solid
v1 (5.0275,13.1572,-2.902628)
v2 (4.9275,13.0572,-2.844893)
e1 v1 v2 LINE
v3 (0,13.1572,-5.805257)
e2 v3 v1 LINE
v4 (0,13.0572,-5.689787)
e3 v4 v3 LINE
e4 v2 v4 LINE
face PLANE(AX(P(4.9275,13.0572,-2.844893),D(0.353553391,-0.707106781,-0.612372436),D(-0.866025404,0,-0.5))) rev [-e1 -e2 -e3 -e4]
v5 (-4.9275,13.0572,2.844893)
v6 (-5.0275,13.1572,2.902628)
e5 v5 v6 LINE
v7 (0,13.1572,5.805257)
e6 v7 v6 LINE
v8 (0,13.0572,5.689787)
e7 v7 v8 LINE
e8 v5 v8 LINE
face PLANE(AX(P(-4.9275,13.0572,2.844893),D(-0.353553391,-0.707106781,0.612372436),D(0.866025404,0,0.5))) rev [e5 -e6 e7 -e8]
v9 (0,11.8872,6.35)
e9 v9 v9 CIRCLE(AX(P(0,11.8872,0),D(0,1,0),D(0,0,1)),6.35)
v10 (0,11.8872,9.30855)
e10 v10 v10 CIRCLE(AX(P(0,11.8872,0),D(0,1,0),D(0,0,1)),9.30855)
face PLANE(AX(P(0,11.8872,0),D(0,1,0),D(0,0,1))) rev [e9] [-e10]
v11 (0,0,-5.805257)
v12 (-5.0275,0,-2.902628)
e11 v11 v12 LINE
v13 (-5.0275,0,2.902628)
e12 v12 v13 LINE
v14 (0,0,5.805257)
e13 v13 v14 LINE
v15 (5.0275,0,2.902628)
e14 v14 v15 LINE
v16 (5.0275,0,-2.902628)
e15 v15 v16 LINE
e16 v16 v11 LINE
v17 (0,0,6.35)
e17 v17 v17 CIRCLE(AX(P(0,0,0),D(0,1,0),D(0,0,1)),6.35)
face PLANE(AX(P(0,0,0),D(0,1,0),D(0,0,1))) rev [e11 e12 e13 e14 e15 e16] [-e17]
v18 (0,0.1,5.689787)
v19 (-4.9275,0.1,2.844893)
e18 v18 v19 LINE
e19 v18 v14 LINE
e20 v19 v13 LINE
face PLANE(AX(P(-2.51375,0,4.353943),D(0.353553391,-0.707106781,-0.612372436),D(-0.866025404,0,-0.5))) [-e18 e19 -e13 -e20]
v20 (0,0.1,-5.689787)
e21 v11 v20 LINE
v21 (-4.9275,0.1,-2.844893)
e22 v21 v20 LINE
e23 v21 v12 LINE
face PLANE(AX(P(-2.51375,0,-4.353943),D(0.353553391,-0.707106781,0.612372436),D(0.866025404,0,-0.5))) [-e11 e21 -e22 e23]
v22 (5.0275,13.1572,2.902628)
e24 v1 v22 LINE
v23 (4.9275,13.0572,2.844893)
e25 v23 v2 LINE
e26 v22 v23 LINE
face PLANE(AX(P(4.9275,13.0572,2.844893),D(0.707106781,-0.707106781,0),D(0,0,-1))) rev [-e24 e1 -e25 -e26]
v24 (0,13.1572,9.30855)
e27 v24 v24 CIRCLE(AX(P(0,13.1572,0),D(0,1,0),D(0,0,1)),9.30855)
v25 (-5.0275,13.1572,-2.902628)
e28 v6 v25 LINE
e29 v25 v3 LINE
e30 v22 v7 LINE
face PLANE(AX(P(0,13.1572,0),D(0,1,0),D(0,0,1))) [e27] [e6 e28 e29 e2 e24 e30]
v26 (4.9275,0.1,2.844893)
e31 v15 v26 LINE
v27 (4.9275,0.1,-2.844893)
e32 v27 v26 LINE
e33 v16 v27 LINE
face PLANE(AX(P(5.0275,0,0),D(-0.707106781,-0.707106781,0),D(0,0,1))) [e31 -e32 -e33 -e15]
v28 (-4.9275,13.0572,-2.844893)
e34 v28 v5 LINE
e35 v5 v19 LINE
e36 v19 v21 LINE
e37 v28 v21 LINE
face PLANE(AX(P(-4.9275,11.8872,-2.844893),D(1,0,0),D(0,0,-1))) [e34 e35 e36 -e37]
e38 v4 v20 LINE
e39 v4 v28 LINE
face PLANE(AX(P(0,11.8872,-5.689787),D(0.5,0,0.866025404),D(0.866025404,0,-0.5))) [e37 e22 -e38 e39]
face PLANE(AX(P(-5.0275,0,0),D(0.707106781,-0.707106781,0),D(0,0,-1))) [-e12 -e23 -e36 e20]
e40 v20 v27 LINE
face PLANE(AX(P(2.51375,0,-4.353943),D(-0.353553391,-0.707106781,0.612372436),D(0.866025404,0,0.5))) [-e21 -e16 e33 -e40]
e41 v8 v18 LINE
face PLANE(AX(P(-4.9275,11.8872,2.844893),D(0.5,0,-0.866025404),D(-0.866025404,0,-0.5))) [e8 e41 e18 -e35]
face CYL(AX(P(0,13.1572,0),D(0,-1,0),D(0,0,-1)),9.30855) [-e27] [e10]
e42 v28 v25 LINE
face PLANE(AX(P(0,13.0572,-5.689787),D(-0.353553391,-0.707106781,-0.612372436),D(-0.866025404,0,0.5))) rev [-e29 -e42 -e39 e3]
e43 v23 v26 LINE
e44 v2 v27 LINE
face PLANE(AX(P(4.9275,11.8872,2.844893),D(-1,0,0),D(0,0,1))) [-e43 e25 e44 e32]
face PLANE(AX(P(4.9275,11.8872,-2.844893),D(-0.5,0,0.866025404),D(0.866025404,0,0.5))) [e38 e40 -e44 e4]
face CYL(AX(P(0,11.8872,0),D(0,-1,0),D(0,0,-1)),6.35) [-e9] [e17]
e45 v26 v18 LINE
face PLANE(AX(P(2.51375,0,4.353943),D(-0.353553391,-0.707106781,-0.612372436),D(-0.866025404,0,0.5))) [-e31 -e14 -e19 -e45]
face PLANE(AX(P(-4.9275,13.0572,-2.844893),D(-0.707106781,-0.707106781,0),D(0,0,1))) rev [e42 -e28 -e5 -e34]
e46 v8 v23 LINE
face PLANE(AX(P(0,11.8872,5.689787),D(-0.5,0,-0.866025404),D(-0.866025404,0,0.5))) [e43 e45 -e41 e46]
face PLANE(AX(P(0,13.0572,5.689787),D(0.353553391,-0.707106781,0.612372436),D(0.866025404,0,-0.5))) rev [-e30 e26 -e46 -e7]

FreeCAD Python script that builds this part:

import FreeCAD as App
import Part
import Sketcher

V = App.Vector
Q = App.Units.Quantity


def edges_at(feature, points):
    """Names of the edges that pass closest to the given points."""
    edges = feature.Shape.Edges
    near = lambda p: min(range(len(edges)), key=lambda i: edges[i].distToShape(Part.Vertex(*p))[0])
    return sorted({f"Edge{near(p) + 1}" for p in points})


def add_polygon(sketch, points):
    """Adds a closed chain of lines whose ends are joined by coincident constraints."""
    first, n = sketch.GeometryCount, len(points)
    for a, b in zip(points, points[1:] + points[:1]):
        sketch.addGeometry(Part.LineSegment(App.Vector(*a, 0), App.Vector(*b, 0)), False)
    for i in range(n):
        sketch.addConstraint(Sketcher.Constraint("Coincident", first + i, 2, first + (i + 1) % n, 1))

doc = App.newDocument("Part")
body = doc.addObject("PartDesign::Body", "Body")

# Sketch on XZ plane
sketch1 = body.newObject("Sketcher::SketchObject", "Sketch")
sketch1.AttachmentSupport = (doc.getObject("XZ_Plane"), [""])
sketch1.MapMode = "FlatFace"
sketch1.addGeometry(Part.Circle(V(0, 0, 0), V(0, 0, 1), 6), False)  # 0
add_polygon(sketch1, [(-5, -3), (0, -6), (5, -3), (5, 3), (0, 6), (-5, 3)])  # lines 1-6
sketch1.addConstraint([
    Sketcher.Constraint("Vertical", 3),
    Sketcher.Constraint("Vertical", 6),
    Sketcher.Constraint("Coincident", 0, 3, -1, 1),
    Sketcher.Constraint("Symmetric", 1, 2, 4, 2, -1, 1),
    Sketcher.Constraint("Symmetric", 2, 2, 5, 2, -1, 1),
    Sketcher.Constraint("PointOnObject", 1, 2, -2),
    Sketcher.Constraint("Parallel", 1, 4),
    Sketcher.Constraint("Horizontal", 3, 2, 5, 2),
    Sketcher.Constraint("Diameter", 0, Q("0.5 in")),
    Sketcher.Constraint("Angle", 1, Q("-30 deg")),
    Sketcher.Constraint("DistanceX", -1, 1, 2, 2, Q("4.9275 mm")),
    Sketcher.Constraint("DistanceY", 3, 1, 3, 2, Q("5.689787 mm")),
])
pad1 = body.newObject("PartDesign::Pad", "Pad")
pad1.Profile = sketch1
pad1.Length = Q("0.468 in")
pad1.Reversed = True

# Sketch on XZ plane
sketch2 = body.newObject("Sketcher::SketchObject", "Sketch001")
sketch2.AttachmentSupport = (doc.getObject("XZ_Plane"), [""])
sketch2.MapMode = "FlatFace"
sketch2.AttachmentOffset = App.Placement(V(0, 0, -0.468 * 25.4), App.Rotation())
sketch2.addGeometry(Part.Circle(V(0, 0, 0), V(0, 0, 1), 9), False)  # 0
add_polygon(sketch2, [(-5, -3), (0, -6), (5, -3), (5, 3), (0, 6), (-5, 3)])  # lines 1-6
sketch2.addConstraint([
    Sketcher.Constraint("Vertical", 3),
    Sketcher.Constraint("Vertical", 6),
    Sketcher.Constraint("Coincident", 0, 3, -1, 1),
    Sketcher.Constraint("Symmetric", 1, 2, 4, 2, -1, 1),
    Sketcher.Constraint("Symmetric", 2, 2, 5, 2, -1, 1),
    Sketcher.Constraint("PointOnObject", 1, 2, -2),
    Sketcher.Constraint("Parallel", 1, 4),
    Sketcher.Constraint("Horizontal", 3, 2, 5, 2),
    Sketcher.Constraint("Angle", 1, Q("-30 deg")),
    Sketcher.Constraint("Diameter", 0, Q("18.617101 mm")),
    Sketcher.Constraint("DistanceX", -1, 1, 2, 2, Q("4.9275 mm")),
    Sketcher.Constraint("DistanceY", 3, 1, 3, 2, Q("5.689787 mm")),
])
pad2 = body.newObject("PartDesign::Pad", "Pad001")
pad2.Profile = sketch2
pad2.Length = Q("0.05 in")
pad2.Reversed = True
doc.recompute()

chamfer = body.newObject("PartDesign::Chamfer", "Chamfer")
chamfer.Base = (pad2, edges_at(pad2, [
    (-4.927, 0, 0),
    (-2.464, 0, 4.267),
    (2.464, 0, 4.267),
    (4.927, 0, 0),
    (2.464, 0, -4.267),
    (-2.464, 0, -4.267),
]))
chamfer.Size = 0.1
doc.recompute()

chamfer2 = body.newObject("PartDesign::Chamfer", "Chamfer001")
chamfer2.Base = (chamfer, edges_at(chamfer, [
    (2.464, 13.157, -4.267),
    (-2.464, 13.157, -4.267),
    (-4.927, 13.157, 0),
    (-2.464, 13.157, 4.267),
    (2.464, 13.157, 4.267),
    (4.927, 13.157, 0),
]))
chamfer2.Size = 0.1

doc.recompute()
